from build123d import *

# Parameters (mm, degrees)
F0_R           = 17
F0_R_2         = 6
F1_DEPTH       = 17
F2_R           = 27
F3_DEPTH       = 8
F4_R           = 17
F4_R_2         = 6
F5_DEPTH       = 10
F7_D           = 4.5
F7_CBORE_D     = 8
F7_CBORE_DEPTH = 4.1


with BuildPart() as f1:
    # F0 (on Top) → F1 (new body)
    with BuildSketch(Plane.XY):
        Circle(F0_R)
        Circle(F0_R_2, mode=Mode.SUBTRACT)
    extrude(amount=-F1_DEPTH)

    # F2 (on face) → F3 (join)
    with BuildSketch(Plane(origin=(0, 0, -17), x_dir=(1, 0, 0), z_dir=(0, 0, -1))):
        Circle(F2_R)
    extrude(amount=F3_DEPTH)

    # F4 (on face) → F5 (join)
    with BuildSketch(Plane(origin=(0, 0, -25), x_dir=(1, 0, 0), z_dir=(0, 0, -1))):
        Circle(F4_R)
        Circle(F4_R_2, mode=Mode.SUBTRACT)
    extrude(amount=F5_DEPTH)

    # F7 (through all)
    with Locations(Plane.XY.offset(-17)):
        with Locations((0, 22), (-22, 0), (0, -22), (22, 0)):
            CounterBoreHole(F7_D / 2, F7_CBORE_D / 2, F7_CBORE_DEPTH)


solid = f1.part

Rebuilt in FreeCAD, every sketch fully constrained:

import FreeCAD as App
import Part
import Sketcher

doc = App.newDocument("Part")
body = doc.addObject("PartDesign::Body", "Body")

# Sketch on XY plane
sketch1 = body.newObject("Sketcher::SketchObject", "Sketch")
sketch1.AttachmentSupport = (doc.getObject("XY_Plane"), [""])
sketch1.MapMode = "FlatFace"
sketch1.addGeometry([
    Part.Circle(App.Vector(0, 0, 0), App.Vector(0, 0, 1), 17),
    Part.Circle(App.Vector(0, 0, 0), App.Vector(0, 0, 1), 6),
], False)
sketch1.addConstraint([
    Sketcher.Constraint("Coincident", 0, 3, -1, 1),
    Sketcher.Constraint("Coincident", 1, 3, -1, 1),
    Sketcher.Constraint("Diameter", 0, 34.0),
    Sketcher.Constraint("Diameter", 1, 12.0),
])
pad1 = body.newObject("PartDesign::Pad", "Pad")
pad1.Profile = sketch1
pad1.Length = 17
pad1.Reversed = True

# Sketch on XY plane
sketch2 = body.newObject("Sketcher::SketchObject", "Sketch001")
sketch2.AttachmentSupport = (doc.getObject("XY_Plane"), [""])
sketch2.MapMode = "FlatFace"
sketch2.AttachmentOffset = App.Placement(App.Vector(0, 0, -17), App.Rotation())
sketch2.addGeometry(Part.Circle(App.Vector(0, 0, 0), App.Vector(0, 0, 1), 27), False)
sketch2.addConstraint([
    Sketcher.Constraint("Coincident", 0, 3, -1, 1),
    Sketcher.Constraint("Diameter", 0, 54.0),
])
pad2 = body.newObject("PartDesign::Pad", "Pad001")
pad2.Profile = sketch2
pad2.Length = 8
pad2.Reversed = True

# Sketch on XY plane
sketch3 = body.newObject("Sketcher::SketchObject", "Sketch002")
sketch3.AttachmentSupport = (doc.getObject("XY_Plane"), [""])
sketch3.MapMode = "FlatFace"
sketch3.AttachmentOffset = App.Placement(App.Vector(0, 0, -25), App.Rotation())
sketch3.addGeometry([
    Part.Circle(App.Vector(0, 0, 0), App.Vector(0, 0, 1), 17),
    Part.Circle(App.Vector(0, 0, 0), App.Vector(0, 0, 1), 6),
], False)
sketch3.addConstraint([
    Sketcher.Constraint("Coincident", 0, 3, -1, 1),
    Sketcher.Constraint("Coincident", 1, 3, -1, 1),
    Sketcher.Constraint("Diameter", 0, 34.0),
    Sketcher.Constraint("Diameter", 1, 12.0),
])
pad3 = body.newObject("PartDesign::Pad", "Pad002")
pad3.Profile = sketch3
pad3.Length = 10
pad3.Reversed = True

# Sketch on XY plane
sketch4 = body.newObject("Sketcher::SketchObject", "Sketch003")
sketch4.AttachmentSupport = (doc.getObject("XY_Plane"), [""])
sketch4.MapMode = "FlatFace"
sketch4.AttachmentOffset = App.Placement(App.Vector(0, 0, -17), App.Rotation())
sketch4.addGeometry([
    Part.Circle(App.Vector(0, 22, 0), App.Vector(0, 0, 1), 2.2),
    Part.Circle(App.Vector(-22, 0, 0), App.Vector(0, 0, 1), 2.2),
    Part.Circle(App.Vector(0, -22, 0), App.Vector(0, 0, 1), 2.2),
    Part.Circle(App.Vector(22, 0, 0), App.Vector(0, 0, 1), 2.2),
], False)
sketch4.addConstraint([
    Sketcher.Constraint("Equal", 0, 1),
    Sketcher.Constraint("Equal", 1, 2),
    Sketcher.Constraint("Equal", 2, 3),
    Sketcher.Constraint("Symmetric", 0, 3, 2, 3, -1, 1),
    Sketcher.Constraint("Symmetric", 1, 3, 3, 3, -1, 1),
    Sketcher.Constraint("PointOnObject", 0, 3, -2),
    Sketcher.Constraint("PointOnObject", 1, 3, -1),
    Sketcher.Constraint("Diameter", 0, 4.5),
    Sketcher.Constraint("DistanceY", -1, 1, 0, 3, 22.0),
    Sketcher.Constraint("DistanceX", 1, 3, -1, 1, 22.0),
])
doc.recompute()
hole = body.newObject("PartDesign::Hole", "Hole")
hole.Profile = sketch4
hole.ThreadType = "None"
hole.Diameter = 4.5
hole.DepthType = "ThroughAll"
hole.HoleCutType = "Counterbore"
hole.HoleCutDiameter = 8
hole.HoleCutDepth = 4.1

doc.recompute()
